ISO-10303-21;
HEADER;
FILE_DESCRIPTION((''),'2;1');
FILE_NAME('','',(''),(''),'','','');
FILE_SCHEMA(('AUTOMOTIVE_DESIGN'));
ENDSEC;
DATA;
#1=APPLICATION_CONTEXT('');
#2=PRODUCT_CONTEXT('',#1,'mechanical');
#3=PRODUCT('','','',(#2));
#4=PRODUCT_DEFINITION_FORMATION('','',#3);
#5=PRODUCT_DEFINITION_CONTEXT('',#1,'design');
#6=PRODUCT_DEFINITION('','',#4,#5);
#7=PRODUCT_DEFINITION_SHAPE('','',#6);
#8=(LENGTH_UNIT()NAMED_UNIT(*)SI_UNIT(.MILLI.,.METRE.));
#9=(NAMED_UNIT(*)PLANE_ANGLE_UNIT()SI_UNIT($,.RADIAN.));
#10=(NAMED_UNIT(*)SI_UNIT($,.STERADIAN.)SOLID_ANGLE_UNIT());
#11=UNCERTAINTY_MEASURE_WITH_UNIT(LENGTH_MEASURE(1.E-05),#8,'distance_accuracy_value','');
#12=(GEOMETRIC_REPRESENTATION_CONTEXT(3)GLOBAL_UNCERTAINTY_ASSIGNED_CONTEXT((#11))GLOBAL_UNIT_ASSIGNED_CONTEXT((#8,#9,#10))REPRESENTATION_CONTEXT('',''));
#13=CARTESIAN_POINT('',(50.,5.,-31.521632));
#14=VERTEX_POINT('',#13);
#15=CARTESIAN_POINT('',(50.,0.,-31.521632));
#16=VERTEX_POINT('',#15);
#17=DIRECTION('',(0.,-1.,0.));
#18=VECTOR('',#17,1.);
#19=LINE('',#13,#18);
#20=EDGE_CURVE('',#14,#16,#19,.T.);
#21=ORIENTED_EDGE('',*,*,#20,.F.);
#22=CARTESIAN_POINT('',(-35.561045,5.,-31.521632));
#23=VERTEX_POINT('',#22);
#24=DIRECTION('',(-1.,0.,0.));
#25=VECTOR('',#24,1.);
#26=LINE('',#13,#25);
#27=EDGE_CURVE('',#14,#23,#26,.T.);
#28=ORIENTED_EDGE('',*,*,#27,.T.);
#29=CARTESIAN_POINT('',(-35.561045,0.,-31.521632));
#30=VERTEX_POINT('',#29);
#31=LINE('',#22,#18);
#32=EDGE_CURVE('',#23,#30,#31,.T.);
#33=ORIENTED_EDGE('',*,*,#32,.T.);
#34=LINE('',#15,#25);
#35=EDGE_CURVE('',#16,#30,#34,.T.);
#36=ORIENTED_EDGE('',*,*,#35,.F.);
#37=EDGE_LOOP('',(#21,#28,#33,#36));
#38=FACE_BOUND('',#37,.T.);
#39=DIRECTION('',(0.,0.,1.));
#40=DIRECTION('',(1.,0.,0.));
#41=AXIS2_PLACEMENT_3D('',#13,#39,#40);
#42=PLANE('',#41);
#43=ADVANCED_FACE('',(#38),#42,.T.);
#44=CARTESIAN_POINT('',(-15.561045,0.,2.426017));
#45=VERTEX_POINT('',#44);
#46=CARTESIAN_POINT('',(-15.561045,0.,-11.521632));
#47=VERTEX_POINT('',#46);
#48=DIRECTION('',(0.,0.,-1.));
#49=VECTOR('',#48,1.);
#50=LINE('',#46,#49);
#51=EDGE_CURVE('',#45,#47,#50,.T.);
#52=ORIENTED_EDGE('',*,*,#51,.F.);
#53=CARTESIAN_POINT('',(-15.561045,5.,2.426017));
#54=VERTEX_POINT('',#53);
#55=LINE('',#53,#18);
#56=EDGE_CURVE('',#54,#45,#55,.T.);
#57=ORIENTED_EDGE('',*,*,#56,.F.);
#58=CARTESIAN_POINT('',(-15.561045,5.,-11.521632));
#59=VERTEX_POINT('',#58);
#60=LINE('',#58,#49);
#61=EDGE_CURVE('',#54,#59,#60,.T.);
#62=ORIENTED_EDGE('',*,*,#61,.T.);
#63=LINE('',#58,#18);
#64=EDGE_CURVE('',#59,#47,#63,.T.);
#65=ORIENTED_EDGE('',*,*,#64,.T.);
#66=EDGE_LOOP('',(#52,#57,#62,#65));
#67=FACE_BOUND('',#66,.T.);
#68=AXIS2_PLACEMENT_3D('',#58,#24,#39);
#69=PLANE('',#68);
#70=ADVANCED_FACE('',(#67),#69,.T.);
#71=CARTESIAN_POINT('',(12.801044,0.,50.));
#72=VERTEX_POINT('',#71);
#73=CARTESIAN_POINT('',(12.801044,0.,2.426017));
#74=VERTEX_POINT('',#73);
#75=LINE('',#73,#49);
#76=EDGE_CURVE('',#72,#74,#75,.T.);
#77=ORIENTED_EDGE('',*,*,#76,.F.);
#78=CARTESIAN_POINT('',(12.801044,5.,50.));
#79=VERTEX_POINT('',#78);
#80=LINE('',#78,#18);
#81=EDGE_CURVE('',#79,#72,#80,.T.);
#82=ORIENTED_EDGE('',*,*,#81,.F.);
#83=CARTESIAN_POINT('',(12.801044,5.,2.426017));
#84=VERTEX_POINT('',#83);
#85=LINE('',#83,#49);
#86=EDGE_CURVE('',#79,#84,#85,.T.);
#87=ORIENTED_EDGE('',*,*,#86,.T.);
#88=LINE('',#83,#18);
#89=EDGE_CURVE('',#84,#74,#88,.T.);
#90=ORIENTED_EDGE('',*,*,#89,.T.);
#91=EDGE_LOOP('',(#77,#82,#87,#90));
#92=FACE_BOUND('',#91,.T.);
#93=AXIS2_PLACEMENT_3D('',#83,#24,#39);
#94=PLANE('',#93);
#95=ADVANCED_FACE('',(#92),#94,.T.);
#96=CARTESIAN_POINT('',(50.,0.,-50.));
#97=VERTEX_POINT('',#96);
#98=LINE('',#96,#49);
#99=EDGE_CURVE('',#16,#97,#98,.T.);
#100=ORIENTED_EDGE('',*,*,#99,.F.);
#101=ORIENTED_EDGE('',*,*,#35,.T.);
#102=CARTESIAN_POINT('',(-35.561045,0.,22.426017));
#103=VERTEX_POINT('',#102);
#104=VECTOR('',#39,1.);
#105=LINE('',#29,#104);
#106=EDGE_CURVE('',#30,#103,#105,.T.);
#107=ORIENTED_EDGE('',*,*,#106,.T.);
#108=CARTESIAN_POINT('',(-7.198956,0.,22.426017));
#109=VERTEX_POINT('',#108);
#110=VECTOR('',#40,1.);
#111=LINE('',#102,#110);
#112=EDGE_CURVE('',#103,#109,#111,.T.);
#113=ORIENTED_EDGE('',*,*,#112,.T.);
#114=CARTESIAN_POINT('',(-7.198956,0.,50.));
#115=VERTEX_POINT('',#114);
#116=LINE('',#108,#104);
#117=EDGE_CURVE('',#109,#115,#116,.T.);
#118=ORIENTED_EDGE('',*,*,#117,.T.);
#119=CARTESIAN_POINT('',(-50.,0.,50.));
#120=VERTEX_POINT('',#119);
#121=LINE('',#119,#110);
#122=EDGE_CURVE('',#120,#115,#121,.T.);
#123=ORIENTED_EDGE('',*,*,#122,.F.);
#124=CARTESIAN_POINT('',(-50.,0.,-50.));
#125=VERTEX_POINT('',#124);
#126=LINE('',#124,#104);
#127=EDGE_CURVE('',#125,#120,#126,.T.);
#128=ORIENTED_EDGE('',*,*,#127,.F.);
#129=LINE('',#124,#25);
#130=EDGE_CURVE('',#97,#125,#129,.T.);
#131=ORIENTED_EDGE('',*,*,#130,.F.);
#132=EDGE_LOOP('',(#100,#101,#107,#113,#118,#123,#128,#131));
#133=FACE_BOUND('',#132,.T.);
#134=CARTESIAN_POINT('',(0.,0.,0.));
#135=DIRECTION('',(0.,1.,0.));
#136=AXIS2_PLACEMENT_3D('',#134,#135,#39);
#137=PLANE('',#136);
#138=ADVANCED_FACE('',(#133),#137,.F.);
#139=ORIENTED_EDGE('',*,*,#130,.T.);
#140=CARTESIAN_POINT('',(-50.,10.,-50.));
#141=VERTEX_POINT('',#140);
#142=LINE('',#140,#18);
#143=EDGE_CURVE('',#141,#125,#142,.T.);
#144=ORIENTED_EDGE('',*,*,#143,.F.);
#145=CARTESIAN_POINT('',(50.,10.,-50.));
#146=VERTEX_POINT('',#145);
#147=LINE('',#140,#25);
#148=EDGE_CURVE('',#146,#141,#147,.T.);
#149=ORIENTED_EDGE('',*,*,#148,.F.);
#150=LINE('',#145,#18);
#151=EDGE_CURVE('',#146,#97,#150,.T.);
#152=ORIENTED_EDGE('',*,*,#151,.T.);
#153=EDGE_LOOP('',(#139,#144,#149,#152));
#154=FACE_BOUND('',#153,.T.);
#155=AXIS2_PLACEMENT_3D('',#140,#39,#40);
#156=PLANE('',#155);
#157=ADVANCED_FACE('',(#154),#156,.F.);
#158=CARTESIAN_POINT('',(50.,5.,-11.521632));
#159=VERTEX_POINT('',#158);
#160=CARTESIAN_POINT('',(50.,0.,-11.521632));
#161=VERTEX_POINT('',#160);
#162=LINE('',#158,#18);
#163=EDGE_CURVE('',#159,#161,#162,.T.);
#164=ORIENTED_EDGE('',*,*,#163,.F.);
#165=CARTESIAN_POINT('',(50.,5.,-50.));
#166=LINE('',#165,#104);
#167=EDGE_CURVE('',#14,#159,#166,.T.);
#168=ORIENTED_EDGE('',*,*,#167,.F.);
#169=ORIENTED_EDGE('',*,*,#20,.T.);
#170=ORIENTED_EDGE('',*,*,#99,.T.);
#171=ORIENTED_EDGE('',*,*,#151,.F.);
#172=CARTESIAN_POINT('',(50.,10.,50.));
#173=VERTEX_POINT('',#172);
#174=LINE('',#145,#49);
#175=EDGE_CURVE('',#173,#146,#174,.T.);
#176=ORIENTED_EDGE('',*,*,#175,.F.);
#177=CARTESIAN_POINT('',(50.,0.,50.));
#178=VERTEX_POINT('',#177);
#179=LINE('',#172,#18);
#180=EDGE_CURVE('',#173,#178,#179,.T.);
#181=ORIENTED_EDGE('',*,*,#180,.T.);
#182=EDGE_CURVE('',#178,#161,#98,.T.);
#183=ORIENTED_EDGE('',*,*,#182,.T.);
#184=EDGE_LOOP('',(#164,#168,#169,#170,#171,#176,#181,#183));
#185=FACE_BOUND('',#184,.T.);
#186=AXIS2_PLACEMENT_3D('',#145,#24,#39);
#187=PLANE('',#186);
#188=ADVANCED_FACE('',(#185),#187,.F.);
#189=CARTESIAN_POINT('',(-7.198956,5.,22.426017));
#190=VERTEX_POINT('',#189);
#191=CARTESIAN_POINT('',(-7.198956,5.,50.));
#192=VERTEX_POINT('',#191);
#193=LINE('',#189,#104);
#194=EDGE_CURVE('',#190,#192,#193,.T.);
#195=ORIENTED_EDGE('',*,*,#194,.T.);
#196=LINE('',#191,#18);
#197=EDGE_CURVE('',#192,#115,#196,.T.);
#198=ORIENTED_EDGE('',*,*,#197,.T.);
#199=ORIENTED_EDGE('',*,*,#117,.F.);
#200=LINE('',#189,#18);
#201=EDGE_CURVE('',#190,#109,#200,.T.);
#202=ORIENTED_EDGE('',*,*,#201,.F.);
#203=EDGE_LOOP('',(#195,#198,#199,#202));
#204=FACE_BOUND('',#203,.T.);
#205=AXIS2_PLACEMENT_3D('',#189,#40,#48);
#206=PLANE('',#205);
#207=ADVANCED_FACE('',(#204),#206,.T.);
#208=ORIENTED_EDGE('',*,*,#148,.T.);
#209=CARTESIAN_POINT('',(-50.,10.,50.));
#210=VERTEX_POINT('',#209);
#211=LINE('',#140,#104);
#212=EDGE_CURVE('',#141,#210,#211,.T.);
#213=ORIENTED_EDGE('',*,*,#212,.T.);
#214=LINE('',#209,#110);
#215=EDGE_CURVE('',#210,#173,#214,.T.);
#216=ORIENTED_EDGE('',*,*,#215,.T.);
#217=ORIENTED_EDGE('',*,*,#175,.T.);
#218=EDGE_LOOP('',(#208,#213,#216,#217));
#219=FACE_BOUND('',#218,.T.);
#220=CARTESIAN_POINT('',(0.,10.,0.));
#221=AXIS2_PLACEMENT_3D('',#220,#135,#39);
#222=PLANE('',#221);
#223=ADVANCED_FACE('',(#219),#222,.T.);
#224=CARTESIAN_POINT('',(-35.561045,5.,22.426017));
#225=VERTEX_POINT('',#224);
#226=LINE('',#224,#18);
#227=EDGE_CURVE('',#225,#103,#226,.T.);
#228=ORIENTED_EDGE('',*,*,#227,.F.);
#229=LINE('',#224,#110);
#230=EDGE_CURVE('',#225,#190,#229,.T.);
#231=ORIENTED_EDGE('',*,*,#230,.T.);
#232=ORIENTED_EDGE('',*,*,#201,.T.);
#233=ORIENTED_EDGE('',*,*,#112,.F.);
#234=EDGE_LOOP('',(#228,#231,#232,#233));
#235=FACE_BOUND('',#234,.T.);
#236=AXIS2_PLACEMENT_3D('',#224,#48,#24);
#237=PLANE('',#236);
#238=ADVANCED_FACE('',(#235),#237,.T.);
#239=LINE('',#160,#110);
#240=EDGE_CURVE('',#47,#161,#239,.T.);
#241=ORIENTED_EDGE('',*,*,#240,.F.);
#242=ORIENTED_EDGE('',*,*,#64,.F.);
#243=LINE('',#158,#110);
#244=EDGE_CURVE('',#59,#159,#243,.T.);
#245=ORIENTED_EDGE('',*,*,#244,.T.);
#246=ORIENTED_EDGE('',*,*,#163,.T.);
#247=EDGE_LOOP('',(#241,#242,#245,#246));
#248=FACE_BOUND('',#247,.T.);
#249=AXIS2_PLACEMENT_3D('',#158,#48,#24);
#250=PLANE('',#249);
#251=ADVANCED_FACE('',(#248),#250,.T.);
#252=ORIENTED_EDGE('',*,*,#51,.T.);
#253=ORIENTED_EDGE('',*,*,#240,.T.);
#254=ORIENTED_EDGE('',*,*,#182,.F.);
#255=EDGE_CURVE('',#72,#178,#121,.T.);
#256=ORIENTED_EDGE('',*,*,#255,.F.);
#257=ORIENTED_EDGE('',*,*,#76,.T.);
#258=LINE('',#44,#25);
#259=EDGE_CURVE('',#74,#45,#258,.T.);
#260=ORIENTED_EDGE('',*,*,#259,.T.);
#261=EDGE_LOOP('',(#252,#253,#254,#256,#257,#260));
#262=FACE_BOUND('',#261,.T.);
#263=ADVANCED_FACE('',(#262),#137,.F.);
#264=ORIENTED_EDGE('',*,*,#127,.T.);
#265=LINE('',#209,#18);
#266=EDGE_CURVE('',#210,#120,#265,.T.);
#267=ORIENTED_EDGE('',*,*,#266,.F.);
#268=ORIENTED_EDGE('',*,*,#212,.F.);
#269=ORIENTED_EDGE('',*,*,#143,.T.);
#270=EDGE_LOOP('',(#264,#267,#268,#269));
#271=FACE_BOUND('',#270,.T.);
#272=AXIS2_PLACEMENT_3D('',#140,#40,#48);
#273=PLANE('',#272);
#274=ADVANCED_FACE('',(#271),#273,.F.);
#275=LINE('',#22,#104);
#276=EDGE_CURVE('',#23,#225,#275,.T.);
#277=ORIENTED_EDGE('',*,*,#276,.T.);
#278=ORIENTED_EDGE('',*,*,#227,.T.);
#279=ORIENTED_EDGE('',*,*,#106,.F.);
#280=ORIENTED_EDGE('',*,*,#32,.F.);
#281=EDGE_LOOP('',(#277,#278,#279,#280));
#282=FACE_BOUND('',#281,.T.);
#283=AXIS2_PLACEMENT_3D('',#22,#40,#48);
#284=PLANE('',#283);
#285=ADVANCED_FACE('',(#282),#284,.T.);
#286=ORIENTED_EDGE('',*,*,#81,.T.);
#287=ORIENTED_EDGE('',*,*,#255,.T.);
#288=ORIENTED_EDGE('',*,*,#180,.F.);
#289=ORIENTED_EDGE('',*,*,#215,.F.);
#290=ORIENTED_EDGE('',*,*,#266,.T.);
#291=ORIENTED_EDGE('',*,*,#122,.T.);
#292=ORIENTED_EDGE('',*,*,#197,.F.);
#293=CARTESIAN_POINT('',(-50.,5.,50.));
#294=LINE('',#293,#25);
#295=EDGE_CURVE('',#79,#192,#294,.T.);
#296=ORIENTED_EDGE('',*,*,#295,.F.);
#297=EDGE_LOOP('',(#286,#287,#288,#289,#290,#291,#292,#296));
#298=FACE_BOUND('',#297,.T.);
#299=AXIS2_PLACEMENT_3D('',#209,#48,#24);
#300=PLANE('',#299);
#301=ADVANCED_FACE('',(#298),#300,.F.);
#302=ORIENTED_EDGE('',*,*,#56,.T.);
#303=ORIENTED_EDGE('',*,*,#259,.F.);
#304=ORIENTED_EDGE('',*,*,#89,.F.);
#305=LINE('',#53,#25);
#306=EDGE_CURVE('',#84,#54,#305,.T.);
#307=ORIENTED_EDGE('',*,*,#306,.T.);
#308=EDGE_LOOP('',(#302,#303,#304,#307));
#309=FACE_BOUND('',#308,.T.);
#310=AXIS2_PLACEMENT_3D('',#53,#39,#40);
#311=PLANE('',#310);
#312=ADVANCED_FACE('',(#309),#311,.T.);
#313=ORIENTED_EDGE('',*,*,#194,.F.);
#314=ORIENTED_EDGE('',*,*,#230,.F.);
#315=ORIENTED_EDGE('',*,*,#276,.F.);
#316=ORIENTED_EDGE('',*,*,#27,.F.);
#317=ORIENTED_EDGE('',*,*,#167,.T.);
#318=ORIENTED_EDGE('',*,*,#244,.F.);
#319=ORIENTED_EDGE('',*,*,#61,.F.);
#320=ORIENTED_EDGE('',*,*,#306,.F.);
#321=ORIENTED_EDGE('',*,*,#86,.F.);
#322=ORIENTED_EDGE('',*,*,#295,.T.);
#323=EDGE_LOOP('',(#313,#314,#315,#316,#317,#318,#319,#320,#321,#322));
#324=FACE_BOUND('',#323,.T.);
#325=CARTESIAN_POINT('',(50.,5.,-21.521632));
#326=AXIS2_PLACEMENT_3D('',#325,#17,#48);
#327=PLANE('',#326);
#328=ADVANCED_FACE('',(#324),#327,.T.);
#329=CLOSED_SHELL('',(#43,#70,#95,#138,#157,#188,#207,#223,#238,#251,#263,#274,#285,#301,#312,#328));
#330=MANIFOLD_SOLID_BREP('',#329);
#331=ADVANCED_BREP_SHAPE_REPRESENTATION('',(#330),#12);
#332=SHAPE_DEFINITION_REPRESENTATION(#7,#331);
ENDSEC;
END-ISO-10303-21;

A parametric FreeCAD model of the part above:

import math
import FreeCAD as App
import Part
import Sketcher

V = App.Vector


def add_polygon(sketch, points):
    """Adds a closed chain of lines whose ends are joined by coincident constraints."""
    first, n = sketch.GeometryCount, len(points)
    for a, b in zip(points, points[1:] + points[:1]):
        sketch.addGeometry(Part.LineSegment(App.Vector(*a, 0), App.Vector(*b, 0)), False)
    for i in range(n):
        sketch.addConstraint(Sketcher.Constraint("Coincident", first + i, 2, first + (i + 1) % n, 1))

doc = App.newDocument("Part")
body = doc.addObject("PartDesign::Body", "Body")

sketch1 = body.newObject("Sketcher::SketchObject", "Sketch")
sketch1.AttachmentSupport = (doc.getObject("XZ_Plane"), [""])
sketch1.MapMode = "FlatFace"
add_polygon(sketch1, [(-50, -50), (-50, 50), (50, 50), (50, -50)])
sketch1.addConstraint([
    Sketcher.Constraint("Vertical", 0),
    Sketcher.Constraint("Horizontal", 1),
    Sketcher.Constraint("Vertical", 2),
    Sketcher.Constraint("Horizontal", 3),
    Sketcher.Constraint("Symmetric", 0, 2, 2, 2, -1, 1),
    Sketcher.Constraint("Equal", 3, 0),
    Sketcher.Constraint("DistanceX", 1, 1, 1, 2, 100.0),
])
pad1 = body.newObject("PartDesign::Pad", "Pad")
pad1.Profile = sketch1
pad1.Length = 10
pad1.Reversed = True

sketch2 = body.newObject("Sketcher::SketchObject", "Sketch001")
sketch2.AttachmentSupport = (doc.getObject("XZ_Plane"), [""])
sketch2.MapMode = "FlatFace"
sketch2.addGeometry([
    Part.LineSegment(V(50, -31.521632, 0), V(-35.561045, -31.521632, 0)),
    Part.LineSegment(V(-35.561045, -31.521632, 0), V(-35.561045, 22.426017, 0)),
    Part.LineSegment(V(-35.561045, 22.426017, 0), V(-7.198956, 22.426017, 0)),
    Part.LineSegment(V(-7.198956, 22.426017, 0), V(-7.198956, 50, 0)),
    Part.ArcOfCircle(Part.Circle(V(2.801044, 50, 0), V(0, 0, 1), 10), math.radians(0), math.radians(180)),
    Part.LineSegment(V(12.801044, 50, 0), V(12.801044, 2.426017, 0)),
    Part.LineSegment(V(12.801044, 2.426017, 0), V(-15.561045, 2.426017, 0)),
    Part.LineSegment(V(-15.561045, 2.426017, 0), V(-15.561045, -11.521632, 0)),
    Part.LineSegment(V(-15.561045, -11.521632, 0), V(50, -11.521632, 0)),
    Part.ArcOfCircle(Part.Circle(V(50, -21.521632, 0), V(0, 0, 1), 10), math.radians(-90), math.radians(90)),
], False)
sketch2.addConstraint([
    Sketcher.Constraint("Coincident", 0, 2, 1, 1),
    Sketcher.Constraint("Coincident", 1, 2, 2, 1),
    Sketcher.Constraint("Coincident", 2, 2, 3, 1),
    Sketcher.Constraint("Tangent", 3, 2, 4, 2),
    Sketcher.Constraint("Tangent", 4, 1, 5, 1),
    Sketcher.Constraint("Coincident", 5, 2, 6, 1),
    Sketcher.Constraint("Coincident", 6, 2, 7, 1),
    Sketcher.Constraint("Coincident", 7, 2, 8, 1),
    Sketcher.Constraint("Tangent", 8, 2, 9, 2),
    Sketcher.Constraint("Tangent", 9, 1, 0, 1),
    Sketcher.Constraint("Horizontal", 0),
    Sketcher.Constraint("Vertical", 1),
    Sketcher.Constraint("Horizontal", 2),
    Sketcher.Constraint("Vertical", 3),
    Sketcher.Constraint("Vertical", 5),
    Sketcher.Constraint("Horizontal", 6),
    Sketcher.Constraint("Vertical", 7),
    Sketcher.Constraint("Horizontal", 8),
    Sketcher.Constraint("Equal", 4, 9),
    Sketcher.Constraint("Equal", 2, 6),
    Sketcher.Constraint("Radius", 4, 10.0),
    Sketcher.Constraint("DistanceY", -1, 1, 4, 3, 50.0),
    Sketcher.Constraint("DistanceX", -1, 1, 9, 3, 50.0),
    Sketcher.Constraint("DistanceY", 5, 2, 2, 2, 20.0),
    Sketcher.Constraint("DistanceX", 2, 1, 2, 2, 28.362088),
    Sketcher.Constraint("DistanceY", 1, 1, 1, 2, 53.947649),
    Sketcher.Constraint("DistanceX", 0, 2, 0, 1, 85.561045),
    Sketcher.Constraint("DistanceY", 3, 1, 3, 2, 27.573983),
])
pocket1 = body.newObject("PartDesign::Pocket", "Pocket")
pocket1.Profile = sketch2
pocket1.Length = 5

doc.recompute()
